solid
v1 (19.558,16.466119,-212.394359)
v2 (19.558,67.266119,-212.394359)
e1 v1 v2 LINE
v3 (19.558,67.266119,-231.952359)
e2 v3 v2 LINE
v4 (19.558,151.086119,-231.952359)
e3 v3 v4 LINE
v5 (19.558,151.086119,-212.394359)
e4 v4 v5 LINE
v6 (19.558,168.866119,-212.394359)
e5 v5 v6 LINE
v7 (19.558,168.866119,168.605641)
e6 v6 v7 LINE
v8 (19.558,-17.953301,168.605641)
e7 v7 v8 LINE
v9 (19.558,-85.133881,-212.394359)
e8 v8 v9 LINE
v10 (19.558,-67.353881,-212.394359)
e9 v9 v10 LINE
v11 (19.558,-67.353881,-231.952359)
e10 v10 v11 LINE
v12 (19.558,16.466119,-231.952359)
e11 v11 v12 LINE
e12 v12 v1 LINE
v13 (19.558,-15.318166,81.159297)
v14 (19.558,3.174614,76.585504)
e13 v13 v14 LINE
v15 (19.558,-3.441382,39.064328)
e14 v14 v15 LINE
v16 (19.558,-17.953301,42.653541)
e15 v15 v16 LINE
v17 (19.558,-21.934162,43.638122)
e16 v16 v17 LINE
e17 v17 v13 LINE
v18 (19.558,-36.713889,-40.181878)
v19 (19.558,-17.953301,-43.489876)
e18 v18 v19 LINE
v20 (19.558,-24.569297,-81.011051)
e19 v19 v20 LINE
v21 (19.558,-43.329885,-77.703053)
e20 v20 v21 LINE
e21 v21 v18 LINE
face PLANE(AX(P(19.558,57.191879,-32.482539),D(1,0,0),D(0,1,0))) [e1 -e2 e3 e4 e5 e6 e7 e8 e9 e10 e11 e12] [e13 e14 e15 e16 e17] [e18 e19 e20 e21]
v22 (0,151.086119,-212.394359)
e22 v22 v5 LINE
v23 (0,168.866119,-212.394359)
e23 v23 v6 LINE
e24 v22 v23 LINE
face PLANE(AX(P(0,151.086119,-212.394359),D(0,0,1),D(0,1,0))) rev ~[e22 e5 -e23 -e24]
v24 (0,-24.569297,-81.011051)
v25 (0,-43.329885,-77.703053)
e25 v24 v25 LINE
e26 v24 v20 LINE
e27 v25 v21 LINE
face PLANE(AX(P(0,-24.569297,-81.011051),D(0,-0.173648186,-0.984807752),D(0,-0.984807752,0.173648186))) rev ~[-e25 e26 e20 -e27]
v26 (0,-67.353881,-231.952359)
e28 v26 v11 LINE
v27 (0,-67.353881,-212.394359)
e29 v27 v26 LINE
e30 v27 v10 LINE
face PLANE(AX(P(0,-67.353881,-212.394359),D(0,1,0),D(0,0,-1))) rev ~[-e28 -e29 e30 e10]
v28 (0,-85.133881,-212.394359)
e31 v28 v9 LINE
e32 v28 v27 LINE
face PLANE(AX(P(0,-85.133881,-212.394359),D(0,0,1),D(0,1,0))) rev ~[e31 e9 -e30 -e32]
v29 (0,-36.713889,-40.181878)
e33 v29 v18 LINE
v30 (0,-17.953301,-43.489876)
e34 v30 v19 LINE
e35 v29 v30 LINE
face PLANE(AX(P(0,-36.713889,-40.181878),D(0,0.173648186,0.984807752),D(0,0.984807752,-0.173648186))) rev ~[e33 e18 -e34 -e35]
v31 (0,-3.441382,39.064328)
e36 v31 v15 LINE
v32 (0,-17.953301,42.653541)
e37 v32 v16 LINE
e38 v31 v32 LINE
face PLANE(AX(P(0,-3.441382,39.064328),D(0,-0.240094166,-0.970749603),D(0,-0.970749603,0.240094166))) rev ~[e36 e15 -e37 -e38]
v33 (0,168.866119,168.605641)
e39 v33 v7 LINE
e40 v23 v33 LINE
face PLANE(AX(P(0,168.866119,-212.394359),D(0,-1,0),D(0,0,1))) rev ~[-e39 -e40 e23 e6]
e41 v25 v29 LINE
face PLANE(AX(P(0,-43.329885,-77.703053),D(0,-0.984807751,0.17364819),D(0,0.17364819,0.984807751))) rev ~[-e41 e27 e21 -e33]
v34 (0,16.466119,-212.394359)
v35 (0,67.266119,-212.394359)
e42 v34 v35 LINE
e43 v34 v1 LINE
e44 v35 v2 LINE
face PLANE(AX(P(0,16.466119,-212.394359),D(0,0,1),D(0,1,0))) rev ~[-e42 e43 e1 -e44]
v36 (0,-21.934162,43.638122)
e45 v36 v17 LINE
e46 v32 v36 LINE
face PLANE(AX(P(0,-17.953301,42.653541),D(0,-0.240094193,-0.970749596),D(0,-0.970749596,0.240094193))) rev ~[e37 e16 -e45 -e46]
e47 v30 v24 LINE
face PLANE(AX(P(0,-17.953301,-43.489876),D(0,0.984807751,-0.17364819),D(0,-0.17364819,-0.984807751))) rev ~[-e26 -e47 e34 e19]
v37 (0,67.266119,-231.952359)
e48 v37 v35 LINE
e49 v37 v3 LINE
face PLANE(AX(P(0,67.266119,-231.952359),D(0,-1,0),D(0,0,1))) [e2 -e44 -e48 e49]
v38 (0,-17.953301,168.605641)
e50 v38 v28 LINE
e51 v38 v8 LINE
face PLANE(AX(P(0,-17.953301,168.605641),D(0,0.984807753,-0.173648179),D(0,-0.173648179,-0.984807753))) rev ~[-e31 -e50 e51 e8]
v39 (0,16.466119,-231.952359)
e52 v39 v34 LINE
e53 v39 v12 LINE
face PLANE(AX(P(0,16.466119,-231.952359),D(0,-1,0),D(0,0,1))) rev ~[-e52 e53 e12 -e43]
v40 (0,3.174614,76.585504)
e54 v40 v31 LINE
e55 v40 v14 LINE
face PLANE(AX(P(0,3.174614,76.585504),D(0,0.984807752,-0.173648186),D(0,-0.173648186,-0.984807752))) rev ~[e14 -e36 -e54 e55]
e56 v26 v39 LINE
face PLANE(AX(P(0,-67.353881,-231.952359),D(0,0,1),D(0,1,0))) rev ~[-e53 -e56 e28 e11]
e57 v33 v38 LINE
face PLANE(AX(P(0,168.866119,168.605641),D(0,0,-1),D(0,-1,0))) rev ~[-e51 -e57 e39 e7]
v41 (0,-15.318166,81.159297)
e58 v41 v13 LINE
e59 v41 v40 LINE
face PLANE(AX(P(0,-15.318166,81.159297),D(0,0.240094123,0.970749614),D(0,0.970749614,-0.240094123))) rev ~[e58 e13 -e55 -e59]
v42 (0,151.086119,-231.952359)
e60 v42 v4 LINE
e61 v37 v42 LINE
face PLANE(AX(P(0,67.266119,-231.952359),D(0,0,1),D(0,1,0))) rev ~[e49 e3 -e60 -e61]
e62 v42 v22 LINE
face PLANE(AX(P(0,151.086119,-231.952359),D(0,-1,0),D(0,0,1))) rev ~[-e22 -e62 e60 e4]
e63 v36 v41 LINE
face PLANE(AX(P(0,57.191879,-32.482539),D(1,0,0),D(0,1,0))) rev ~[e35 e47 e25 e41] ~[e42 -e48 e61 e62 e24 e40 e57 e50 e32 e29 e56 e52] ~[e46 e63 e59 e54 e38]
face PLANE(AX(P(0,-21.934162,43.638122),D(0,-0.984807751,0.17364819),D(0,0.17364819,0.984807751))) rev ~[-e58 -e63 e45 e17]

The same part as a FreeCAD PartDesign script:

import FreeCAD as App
import Part
import Sketcher
Q = App.Units.Quantity


def add_polygon(sketch, points):
    """Adds a closed chain of lines whose ends are joined by coincident constraints."""
    first, n = sketch.GeometryCount, len(points)
    for a, b in zip(points, points[1:] + points[:1]):
        sketch.addGeometry(Part.LineSegment(App.Vector(*a, 0), App.Vector(*b, 0)), False)
    for i in range(n):
        sketch.addConstraint(Sketcher.Constraint("Coincident", first + i, 2, first + (i + 1) % n, 1))

doc = App.newDocument("Part")
body = doc.addObject("PartDesign::Body", "Body")

# Sketch on YZ plane
sketch1 = body.newObject("Sketcher::SketchObject", "Sketch")
sketch1.AttachmentSupport = (doc.getObject("YZ_Plane"), [""])
sketch1.MapMode = "FlatFace"
add_polygon(sketch1, [(-17.953301, 168.605641), (-85.133881, -212.394359), (-67.353881, -212.394359), (-67.353881, -231.952359), (16.466119, -231.952359), (16.466119, -212.394359), (67.266119, -212.394359), (67.266119, -231.952359), (151.086119, -231.952359), (151.086119, -212.394359), (168.866119, -212.394359), (168.866119, 168.605641)])  # lines 0-11
add_polygon(sketch1, [(-17.953301, -43.489876), (-24.569297, -81.011051), (-43.329885, -77.703053), (-36.713889, -40.181878)])  # lines 12-15
add_polygon(sketch1, [(-3.441382, 39.064328), (-17.953301, 42.653541), (-21.934162, 43.638122), (-15.318166, 81.159297), (3.174614, 76.585504)])  # lines 16-20
sketch1.addConstraint(Sketcher.Constraint("Horizontal", 1))
sketch1.addConstraint(Sketcher.Constraint("Vertical", 2))
sketch1.addConstraint(Sketcher.Constraint("Horizontal", 3))
sketch1.addConstraint(Sketcher.Constraint("Vertical", 4))
sketch1.addConstraint(Sketcher.Constraint("Horizontal", 5))
sketch1.addConstraint(Sketcher.Constraint("Vertical", 6))
sketch1.addConstraint(Sketcher.Constraint("Horizontal", 7))
sketch1.addConstraint(Sketcher.Constraint("Vertical", 8))
sketch1.addConstraint(Sketcher.Constraint("Horizontal", 9))
sketch1.addConstraint(Sketcher.Constraint("Vertical", 10))
sketch1.addConstraint(Sketcher.Constraint("Horizontal", 11))
sketch1.addConstraint(Sketcher.Constraint("Parallel", 0, 12))
sketch1.addConstraint(Sketcher.Constraint("Perpendicular", 12, 13))
sketch1.addConstraint(Sketcher.Constraint("Perpendicular", 13, 14))
sketch1.addConstraint(Sketcher.Constraint("Perpendicular", 14, 15))
sketch1.addConstraint(Sketcher.Constraint("Parallel", 16, 17))
sketch1.addConstraint(Sketcher.Constraint("Perpendicular", 15, 18))
sketch1.addConstraint(Sketcher.Constraint("Parallel", 17, 19))
sketch1.addConstraint(Sketcher.Constraint("Parallel", 18, 20))
sketch1.addConstraint(Sketcher.Constraint("Horizontal", 1, 2, 4, 2))
sketch1.addConstraint(Sketcher.Constraint("Horizontal", 3, 2, 6, 2))
sketch1.addConstraint(Sketcher.Constraint("Horizontal", 5, 2, 8, 2))
sketch1.addConstraint(Sketcher.Constraint("Vertical", 11, 2, 15, 2))
sketch1.addConstraint(Sketcher.Constraint("Vertical", 15, 2, 16, 2))
sketch1.addConstraint(Sketcher.Constraint("Equal", 3, 7))
sketch1.addConstraint(Sketcher.Constraint("Equal", 1, 9))
sketch1.addConstraint(Sketcher.Constraint("Equal", 14, 18))
sketch1.addConstraint(Sketcher.Constraint("Equal", 15, 19))
sketch1.addConstraint(Sketcher.Constraint("DistanceX", 5, 1, 5, 2, Q("2 in")))
sketch1.addConstraint(Sketcher.Constraint("DistanceY", 10, 1, 10, 2, Q("15 in")))
sketch1.addConstraint(Sketcher.Constraint("DistanceX", 1, 1, 1, 2, Q("0.7 in")))
sketch1.addConstraint(Sketcher.Constraint("DistanceX", 3, 1, 3, 2, Q("3.3 in")))
sketch1.addConstraint(Sketcher.Constraint("Angle", 0, Q("-100 deg")))
sketch1.addConstraint(Sketcher.Constraint("Distance", 12, Q("1.5 in")))
sketch1.addConstraint(Sketcher.Constraint("DistanceY", 2, 2, 2, 1, Q("0.77 in")))
sketch1.addConstraint(Sketcher.Constraint("DistanceY", 14, 2, 17, 2, Q("3.3 in")))
sketch1.addConstraint(Sketcher.Constraint("Distance", 13, Q("0.75 in")))
sketch1.addConstraint(Sketcher.Constraint("DistanceY", 15, 2, -1, 1, Q("1.7121998 in")))
sketch1.addConstraint(Sketcher.Constraint("DistanceX", 11, 2, -1, 1, Q("17.953301 mm")))
sketch1.addConstraint(Sketcher.Constraint("DistanceY", 16, 2, 11, 2, Q("125.9521 mm")))
sketch1.addConstraint(Sketcher.Constraint("Distance", 16, Q("14.949189 mm")))
sketch1.addConstraint(Sketcher.Constraint("DistanceY", 0, 2, -1, 1, Q("212.394359 mm")))
pad1 = body.newObject("PartDesign::Pad", "Pad")
pad1.Profile = sketch1
pad1.Length = Q("0.77 in")

doc.recompute()
